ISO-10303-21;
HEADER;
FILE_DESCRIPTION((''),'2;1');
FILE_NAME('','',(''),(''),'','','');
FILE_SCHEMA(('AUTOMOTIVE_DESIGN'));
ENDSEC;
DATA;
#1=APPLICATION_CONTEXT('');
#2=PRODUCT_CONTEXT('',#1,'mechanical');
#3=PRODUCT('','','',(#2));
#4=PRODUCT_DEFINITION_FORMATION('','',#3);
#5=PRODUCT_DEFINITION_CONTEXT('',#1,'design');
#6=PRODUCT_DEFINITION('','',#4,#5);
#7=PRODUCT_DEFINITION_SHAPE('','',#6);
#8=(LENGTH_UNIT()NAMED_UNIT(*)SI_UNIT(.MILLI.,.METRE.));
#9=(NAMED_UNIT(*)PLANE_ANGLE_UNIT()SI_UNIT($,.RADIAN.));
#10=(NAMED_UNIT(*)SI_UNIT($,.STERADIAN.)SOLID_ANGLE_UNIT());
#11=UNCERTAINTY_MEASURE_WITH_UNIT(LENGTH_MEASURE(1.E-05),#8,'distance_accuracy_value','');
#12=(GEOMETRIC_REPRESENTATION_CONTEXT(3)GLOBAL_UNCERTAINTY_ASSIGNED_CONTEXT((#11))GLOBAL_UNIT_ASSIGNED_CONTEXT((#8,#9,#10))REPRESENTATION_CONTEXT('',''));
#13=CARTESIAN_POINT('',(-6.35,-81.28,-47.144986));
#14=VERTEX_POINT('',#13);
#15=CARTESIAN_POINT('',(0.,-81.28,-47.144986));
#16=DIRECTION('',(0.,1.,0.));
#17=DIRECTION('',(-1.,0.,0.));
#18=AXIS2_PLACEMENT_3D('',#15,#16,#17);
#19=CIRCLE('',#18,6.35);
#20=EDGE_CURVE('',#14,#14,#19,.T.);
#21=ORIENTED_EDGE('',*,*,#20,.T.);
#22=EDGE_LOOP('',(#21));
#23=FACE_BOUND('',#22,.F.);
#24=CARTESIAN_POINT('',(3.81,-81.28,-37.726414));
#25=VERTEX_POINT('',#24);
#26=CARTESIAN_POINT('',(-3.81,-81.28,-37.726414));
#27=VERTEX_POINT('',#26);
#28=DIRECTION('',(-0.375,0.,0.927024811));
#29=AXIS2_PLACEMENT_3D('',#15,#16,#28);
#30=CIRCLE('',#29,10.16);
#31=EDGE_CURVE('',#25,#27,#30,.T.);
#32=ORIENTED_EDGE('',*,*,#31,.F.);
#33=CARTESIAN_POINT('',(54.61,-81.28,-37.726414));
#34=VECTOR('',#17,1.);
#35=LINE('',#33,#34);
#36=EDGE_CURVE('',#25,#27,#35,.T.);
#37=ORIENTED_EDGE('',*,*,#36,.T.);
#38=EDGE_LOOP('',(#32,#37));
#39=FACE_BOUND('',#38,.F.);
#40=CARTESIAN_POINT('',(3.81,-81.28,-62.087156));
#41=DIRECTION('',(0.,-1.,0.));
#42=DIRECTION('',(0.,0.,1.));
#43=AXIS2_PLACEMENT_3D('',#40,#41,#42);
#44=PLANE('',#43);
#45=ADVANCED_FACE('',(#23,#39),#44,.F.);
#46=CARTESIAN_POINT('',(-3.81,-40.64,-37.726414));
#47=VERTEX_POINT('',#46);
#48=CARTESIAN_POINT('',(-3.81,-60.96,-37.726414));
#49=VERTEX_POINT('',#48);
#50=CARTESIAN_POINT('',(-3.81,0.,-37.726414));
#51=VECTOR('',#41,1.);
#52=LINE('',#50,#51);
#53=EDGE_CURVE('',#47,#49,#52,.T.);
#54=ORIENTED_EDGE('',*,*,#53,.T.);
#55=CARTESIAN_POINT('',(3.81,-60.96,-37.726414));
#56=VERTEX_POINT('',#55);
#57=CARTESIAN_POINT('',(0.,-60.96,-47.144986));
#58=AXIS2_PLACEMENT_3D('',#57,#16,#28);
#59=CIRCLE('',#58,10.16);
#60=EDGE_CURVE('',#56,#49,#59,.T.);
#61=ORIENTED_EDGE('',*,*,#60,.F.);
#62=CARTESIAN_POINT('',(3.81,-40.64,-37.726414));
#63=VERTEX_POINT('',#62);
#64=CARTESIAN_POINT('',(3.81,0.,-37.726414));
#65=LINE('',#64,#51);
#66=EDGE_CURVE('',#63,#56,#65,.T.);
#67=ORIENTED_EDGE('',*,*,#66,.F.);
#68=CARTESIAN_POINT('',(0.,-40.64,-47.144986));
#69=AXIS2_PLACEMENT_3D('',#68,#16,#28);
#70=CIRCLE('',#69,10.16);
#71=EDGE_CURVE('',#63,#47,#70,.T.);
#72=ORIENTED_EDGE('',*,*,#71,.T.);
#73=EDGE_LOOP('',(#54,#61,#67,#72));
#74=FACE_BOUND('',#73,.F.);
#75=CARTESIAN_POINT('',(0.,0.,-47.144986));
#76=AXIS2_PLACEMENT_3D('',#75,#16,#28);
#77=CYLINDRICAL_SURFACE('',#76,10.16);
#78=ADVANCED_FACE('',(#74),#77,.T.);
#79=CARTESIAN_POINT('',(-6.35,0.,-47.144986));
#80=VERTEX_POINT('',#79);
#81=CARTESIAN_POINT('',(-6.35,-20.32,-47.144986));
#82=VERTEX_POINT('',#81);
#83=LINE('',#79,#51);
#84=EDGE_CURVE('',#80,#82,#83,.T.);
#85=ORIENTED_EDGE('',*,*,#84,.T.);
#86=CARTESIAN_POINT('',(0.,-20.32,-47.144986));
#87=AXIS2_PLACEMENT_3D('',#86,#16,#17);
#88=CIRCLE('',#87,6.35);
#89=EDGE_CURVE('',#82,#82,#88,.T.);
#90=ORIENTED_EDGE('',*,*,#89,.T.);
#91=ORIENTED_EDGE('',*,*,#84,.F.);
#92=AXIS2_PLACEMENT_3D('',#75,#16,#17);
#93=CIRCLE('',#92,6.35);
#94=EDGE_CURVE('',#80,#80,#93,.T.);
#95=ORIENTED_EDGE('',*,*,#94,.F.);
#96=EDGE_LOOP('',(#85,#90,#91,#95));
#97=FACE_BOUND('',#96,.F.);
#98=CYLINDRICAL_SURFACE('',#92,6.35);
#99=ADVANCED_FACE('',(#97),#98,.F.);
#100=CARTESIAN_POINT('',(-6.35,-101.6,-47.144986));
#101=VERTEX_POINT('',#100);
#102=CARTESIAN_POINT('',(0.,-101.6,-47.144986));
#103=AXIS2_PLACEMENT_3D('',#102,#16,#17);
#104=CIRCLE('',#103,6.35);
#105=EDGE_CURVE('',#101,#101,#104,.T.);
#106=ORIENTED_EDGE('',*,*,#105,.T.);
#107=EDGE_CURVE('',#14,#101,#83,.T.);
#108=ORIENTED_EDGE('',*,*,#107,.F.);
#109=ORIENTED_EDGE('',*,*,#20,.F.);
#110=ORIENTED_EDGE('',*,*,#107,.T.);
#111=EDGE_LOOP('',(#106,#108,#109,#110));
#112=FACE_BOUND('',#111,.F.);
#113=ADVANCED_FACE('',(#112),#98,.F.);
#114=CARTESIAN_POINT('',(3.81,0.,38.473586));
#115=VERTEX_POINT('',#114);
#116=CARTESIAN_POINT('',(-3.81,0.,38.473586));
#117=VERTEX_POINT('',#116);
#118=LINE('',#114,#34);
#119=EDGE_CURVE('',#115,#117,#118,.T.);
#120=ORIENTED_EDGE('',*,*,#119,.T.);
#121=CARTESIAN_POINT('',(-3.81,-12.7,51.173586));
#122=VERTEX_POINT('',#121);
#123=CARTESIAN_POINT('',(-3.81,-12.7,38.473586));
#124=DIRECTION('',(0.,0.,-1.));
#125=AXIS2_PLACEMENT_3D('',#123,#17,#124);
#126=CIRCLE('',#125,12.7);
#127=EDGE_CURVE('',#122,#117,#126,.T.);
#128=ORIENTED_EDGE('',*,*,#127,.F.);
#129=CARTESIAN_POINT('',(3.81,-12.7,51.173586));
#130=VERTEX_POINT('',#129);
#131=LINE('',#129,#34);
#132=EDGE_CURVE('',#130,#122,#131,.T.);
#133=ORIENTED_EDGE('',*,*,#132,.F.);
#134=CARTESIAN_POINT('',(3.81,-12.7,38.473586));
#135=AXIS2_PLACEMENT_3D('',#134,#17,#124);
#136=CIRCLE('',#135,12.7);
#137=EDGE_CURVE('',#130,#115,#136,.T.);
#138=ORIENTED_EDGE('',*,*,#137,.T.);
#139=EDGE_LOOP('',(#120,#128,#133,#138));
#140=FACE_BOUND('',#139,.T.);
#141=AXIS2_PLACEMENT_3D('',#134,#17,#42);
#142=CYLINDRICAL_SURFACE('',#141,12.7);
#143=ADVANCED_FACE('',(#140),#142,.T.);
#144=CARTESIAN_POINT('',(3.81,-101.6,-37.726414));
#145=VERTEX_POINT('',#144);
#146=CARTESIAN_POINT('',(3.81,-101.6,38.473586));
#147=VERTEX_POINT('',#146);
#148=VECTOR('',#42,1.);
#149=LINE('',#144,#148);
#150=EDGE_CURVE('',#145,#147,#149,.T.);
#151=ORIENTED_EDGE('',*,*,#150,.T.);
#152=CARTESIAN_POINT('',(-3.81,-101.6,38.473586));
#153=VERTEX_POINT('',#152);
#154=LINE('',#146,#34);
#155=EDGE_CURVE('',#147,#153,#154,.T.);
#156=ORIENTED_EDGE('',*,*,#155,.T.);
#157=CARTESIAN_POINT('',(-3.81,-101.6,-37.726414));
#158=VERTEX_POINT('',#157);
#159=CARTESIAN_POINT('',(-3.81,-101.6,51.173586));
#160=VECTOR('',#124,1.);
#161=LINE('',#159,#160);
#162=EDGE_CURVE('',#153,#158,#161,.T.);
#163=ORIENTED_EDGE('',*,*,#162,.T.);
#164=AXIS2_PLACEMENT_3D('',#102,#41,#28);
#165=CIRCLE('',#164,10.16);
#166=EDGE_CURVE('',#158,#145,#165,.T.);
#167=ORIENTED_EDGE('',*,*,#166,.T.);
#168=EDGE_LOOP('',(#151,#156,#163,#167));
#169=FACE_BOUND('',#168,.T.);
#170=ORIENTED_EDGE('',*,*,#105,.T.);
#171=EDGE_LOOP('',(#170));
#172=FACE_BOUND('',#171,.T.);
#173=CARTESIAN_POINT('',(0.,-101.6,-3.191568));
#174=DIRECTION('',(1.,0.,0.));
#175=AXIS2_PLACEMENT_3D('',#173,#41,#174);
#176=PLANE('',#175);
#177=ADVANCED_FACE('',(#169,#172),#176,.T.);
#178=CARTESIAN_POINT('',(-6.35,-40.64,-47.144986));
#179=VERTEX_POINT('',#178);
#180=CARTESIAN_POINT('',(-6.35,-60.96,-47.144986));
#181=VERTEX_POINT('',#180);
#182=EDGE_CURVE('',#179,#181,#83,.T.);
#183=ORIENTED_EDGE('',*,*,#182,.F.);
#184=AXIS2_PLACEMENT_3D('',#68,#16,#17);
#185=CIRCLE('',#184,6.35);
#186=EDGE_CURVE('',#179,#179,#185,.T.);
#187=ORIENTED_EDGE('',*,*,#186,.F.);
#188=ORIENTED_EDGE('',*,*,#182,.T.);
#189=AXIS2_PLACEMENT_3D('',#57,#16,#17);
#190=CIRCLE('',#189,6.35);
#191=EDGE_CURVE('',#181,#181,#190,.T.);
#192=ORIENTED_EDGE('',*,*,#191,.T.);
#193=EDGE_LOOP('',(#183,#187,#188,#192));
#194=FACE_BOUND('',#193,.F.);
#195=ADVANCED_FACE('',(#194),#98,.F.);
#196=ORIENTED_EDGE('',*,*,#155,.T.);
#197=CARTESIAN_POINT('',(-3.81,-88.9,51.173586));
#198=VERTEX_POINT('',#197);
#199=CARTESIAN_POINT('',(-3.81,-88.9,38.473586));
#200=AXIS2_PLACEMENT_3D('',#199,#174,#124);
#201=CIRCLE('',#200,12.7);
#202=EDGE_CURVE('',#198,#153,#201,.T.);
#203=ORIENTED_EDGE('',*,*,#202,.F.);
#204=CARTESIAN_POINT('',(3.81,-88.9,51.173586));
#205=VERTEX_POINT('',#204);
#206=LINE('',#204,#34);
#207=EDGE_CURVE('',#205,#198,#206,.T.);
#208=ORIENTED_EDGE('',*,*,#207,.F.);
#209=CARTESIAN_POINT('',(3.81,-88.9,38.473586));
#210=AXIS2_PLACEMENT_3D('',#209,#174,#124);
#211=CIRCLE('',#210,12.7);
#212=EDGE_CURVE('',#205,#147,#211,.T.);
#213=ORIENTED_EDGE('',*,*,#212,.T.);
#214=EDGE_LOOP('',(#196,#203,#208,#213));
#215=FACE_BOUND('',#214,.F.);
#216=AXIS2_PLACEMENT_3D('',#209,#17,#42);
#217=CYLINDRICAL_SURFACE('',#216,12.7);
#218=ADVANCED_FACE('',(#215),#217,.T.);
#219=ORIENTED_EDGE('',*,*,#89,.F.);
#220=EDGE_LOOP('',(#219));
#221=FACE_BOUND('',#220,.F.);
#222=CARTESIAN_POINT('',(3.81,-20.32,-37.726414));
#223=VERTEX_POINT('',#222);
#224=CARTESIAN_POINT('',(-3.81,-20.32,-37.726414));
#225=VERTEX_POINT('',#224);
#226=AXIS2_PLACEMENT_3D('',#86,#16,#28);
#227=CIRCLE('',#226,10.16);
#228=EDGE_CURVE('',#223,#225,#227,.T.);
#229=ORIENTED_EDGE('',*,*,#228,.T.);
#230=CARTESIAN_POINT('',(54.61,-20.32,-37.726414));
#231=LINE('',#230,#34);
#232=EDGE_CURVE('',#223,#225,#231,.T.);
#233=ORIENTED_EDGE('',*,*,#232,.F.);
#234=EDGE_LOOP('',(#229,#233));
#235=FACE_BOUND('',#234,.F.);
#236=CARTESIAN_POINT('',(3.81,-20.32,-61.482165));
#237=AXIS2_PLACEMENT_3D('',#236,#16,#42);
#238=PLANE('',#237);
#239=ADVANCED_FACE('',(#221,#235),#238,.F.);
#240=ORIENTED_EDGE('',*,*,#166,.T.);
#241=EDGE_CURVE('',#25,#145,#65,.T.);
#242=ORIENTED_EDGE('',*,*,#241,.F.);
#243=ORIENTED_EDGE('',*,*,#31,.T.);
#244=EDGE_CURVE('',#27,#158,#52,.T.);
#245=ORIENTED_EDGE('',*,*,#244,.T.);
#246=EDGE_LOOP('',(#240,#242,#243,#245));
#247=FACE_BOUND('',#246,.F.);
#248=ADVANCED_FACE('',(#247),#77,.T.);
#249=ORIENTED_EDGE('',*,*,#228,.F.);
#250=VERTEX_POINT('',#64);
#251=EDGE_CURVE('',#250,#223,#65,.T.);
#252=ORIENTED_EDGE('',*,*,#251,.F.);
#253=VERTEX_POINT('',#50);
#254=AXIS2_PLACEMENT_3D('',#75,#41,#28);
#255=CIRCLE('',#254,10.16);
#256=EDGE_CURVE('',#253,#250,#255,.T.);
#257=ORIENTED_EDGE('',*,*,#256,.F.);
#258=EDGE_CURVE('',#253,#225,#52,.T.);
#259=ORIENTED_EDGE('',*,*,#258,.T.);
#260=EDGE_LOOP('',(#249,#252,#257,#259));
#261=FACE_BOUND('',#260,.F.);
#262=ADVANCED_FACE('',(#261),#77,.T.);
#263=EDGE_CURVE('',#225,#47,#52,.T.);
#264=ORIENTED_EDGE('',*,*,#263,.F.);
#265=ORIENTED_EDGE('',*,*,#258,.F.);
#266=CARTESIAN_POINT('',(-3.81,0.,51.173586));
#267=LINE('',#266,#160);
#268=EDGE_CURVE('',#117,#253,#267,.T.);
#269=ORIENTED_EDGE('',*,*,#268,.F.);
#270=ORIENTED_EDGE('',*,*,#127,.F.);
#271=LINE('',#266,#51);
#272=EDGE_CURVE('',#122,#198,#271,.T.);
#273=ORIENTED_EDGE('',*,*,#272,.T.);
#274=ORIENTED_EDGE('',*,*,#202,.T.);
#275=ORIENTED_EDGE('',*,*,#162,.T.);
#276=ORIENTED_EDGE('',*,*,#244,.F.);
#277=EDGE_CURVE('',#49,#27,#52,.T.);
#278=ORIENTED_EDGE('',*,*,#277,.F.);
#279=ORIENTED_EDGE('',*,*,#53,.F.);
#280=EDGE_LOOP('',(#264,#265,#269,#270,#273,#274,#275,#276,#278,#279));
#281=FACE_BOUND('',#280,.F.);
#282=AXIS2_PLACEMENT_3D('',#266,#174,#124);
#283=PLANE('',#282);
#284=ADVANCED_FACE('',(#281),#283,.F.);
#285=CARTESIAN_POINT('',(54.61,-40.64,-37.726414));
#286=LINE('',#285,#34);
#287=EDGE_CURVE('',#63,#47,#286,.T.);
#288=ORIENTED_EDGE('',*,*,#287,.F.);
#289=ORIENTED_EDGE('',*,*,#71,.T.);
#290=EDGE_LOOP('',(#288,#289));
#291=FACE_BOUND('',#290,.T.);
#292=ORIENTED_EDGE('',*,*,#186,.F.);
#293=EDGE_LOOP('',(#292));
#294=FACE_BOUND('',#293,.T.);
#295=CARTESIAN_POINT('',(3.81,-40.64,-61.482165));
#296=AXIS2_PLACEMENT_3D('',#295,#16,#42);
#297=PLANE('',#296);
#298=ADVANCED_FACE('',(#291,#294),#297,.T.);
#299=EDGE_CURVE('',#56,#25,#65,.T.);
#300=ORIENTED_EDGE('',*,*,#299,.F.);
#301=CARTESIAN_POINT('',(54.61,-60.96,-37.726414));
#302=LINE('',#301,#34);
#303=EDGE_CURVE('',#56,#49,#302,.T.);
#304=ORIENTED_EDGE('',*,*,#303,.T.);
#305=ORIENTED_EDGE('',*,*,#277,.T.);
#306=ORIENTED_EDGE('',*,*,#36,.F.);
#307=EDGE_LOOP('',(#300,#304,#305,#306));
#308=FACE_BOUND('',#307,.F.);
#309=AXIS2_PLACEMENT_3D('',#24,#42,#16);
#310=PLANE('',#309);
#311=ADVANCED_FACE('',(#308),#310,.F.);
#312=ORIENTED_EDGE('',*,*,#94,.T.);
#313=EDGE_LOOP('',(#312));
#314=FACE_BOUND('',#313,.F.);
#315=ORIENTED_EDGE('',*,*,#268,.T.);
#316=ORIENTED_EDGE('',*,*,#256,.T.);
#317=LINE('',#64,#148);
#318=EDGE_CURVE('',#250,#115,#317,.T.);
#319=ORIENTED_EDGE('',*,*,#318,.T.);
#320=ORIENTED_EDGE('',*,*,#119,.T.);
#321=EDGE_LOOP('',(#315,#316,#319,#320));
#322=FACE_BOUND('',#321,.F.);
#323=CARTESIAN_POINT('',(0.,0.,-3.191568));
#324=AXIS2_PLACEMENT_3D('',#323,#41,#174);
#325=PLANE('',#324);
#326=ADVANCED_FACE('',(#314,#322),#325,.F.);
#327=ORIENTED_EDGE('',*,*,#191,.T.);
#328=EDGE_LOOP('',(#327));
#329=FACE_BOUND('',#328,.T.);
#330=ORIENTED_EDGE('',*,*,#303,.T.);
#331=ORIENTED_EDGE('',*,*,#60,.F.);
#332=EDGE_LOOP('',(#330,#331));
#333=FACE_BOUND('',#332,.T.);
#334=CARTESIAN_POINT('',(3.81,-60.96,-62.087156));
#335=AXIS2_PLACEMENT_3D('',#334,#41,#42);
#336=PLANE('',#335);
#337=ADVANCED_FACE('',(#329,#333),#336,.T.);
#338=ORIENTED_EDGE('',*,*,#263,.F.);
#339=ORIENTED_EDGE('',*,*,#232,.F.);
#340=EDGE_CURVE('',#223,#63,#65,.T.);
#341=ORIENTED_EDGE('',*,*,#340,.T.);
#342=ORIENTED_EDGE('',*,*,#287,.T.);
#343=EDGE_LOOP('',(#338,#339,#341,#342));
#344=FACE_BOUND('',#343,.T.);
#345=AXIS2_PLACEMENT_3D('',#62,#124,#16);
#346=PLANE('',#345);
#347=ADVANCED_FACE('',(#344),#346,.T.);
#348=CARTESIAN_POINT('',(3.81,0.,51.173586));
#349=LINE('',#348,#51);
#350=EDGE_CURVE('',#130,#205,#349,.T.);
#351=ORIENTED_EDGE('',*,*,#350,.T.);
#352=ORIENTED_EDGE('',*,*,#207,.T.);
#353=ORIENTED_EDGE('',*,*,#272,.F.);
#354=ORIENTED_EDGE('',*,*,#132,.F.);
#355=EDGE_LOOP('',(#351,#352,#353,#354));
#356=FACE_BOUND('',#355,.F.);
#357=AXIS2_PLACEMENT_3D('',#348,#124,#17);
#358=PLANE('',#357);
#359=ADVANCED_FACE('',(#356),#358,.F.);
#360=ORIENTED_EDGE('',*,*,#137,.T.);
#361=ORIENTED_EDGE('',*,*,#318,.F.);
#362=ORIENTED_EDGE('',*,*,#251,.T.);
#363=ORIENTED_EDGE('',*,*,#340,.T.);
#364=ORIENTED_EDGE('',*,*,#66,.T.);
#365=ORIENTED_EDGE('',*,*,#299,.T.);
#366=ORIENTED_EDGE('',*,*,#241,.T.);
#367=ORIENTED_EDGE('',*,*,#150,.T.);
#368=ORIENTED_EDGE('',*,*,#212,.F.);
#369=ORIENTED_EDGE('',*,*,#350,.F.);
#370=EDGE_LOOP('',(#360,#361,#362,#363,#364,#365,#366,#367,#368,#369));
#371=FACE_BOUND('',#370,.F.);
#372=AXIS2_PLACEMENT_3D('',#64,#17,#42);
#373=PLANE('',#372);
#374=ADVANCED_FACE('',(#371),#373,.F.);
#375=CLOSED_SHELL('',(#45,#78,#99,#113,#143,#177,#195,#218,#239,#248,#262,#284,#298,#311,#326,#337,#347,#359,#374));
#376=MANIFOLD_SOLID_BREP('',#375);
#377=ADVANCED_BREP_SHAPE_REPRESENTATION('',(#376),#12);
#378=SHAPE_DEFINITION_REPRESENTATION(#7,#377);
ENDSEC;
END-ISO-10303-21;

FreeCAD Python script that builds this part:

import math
import FreeCAD as App
import Part
import Sketcher
from FreeCAD import Vector
Q = App.Units.Quantity


def edges_at(feature, points):
    """Names of the edges that pass closest to the given points."""
    edges = feature.Shape.Edges
    near = lambda p: min(range(len(edges)), key=lambda i: edges[i].distToShape(Part.Vertex(*p))[0])
    return sorted({f"Edge{near(p) + 1}" for p in points})


def add_polygon(sketch, points):
    """Adds a closed chain of lines whose ends are joined by coincident constraints."""
    first, n = sketch.GeometryCount, len(points)
    for a, b in zip(points, points[1:] + points[:1]):
        sketch.addGeometry(Part.LineSegment(App.Vector(*a, 0), App.Vector(*b, 0)), False)
    for i in range(n):
        sketch.addConstraint(Sketcher.Constraint("Coincident", first + i, 2, first + (i + 1) % n, 1))

doc = App.newDocument("Part")
body = doc.addObject("PartDesign::Body", "Body")

# Sketch on XZ plane
sketch1 = body.newObject("Sketcher::SketchObject", "Sketch")
sketch1.AttachmentSupport = (doc.getObject("XZ_Plane"), [""])
sketch1.MapMode = "FlatFace"
sketch1.addGeometry(Part.LineSegment(Vector(4, 51, 0), Vector(-4, 51, 0)), False)
sketch1.addGeometry(Part.LineSegment(Vector(-4, 51, 0), Vector(-4, -38, 0)), False)
sketch1.addGeometry(Part.ArcOfCircle(Part.Circle(Vector(0, -47, 0), Vector(0, 0, 1), 10), math.radians(112), math.radians(428)), False)
sketch1.addGeometry(Part.LineSegment(Vector(4, -38, 0), Vector(4, 51, 0)), False)
sketch1.addConstraint(Sketcher.Constraint("Coincident", 0, 2, 1, 1))
sketch1.addConstraint(Sketcher.Constraint("Coincident", 1, 2, 2, 1))
sketch1.addConstraint(Sketcher.Constraint("Coincident", 2, 2, 3, 1))
sketch1.addConstraint(Sketcher.Constraint("Coincident", 3, 2, 0, 1))
sketch1.addConstraint(Sketcher.Constraint("Horizontal", 0))
sketch1.addConstraint(Sketcher.Constraint("Vertical", 1))
sketch1.addConstraint(Sketcher.Constraint("Vertical", 3))
sketch1.addConstraint(Sketcher.Constraint("Symmetric", 1, 2, 2, 2, -2))
sketch1.addConstraint(Sketcher.Constraint("Radius", 2, Q("0.4 in")))
sketch1.addConstraint(Sketcher.Constraint("DistanceX", 0, 2, 0, 1, Q("0.3 in")))
sketch1.addConstraint(Sketcher.Constraint("DistanceY", 1, 2, 1, 1, Q("3.5 in")))
sketch1.addConstraint(Sketcher.Constraint("DistanceY", 2, 3, -1, 1, 47.144986))
pad1 = body.newObject("PartDesign::Pad", "Pad")
pad1.Profile = sketch1
pad1.Length = Q("4 in")
doc.recompute()

fillet = body.newObject("PartDesign::Fillet", "Fillet")
fillet.Base = (pad1, edges_at(pad1, [(0, -101.6, 51.174), (0, 0, 51.174)]))
fillet.Radius = Q("0.5 in")

# Sketch on XZ plane
sketch2 = body.newObject("Sketcher::SketchObject", "Sketch001")
sketch2.AttachmentSupport = (doc.getObject("XZ_Plane"), [""])
sketch2.MapMode = "FlatFace"
sketch2.addGeometry(Part.Circle(Vector(0, -47, 0), Vector(0, 0, 1), 6), False)
sketch2.addConstraint(Sketcher.Constraint("PointOnObject", 0, 3, -2))
sketch2.addConstraint(Sketcher.Constraint("Diameter", 0, Q("0.5 in")))
sketch2.addConstraint(Sketcher.Constraint("DistanceY", 0, 3, -1, 1, 47.144986))
pocket1 = body.newObject("PartDesign::Pocket", "Pocket")
pocket1.Profile = sketch2
pocket1.Type = "ThroughAll"
pocket1.Reversed = True

# Sketch on YZ plane
sketch3 = body.newObject("Sketcher::SketchObject", "Sketch002")
sketch3.AttachmentSupport = (doc.getObject("YZ_Plane"), [""])
sketch3.MapMode = "FlatFace"
sketch3.AttachmentOffset = App.Placement(Vector(0, 0, 0.15 * 25.4), App.Rotation())
add_polygon(sketch3, [(-81, -38), (-81, -62), (-61, -62), (-61, -38)])  # lines 0-3
add_polygon(sketch3, [(-41, -38), (-41, -61), (-20, -61), (-20, -38)])  # lines 4-7
sketch3.addConstraint(Sketcher.Constraint("Vertical", 0))
sketch3.addConstraint(Sketcher.Constraint("Horizontal", 1))
sketch3.addConstraint(Sketcher.Constraint("Vertical", 2))
sketch3.addConstraint(Sketcher.Constraint("Horizontal", 3))
sketch3.addConstraint(Sketcher.Constraint("Vertical", 4))
sketch3.addConstraint(Sketcher.Constraint("Horizontal", 5))
sketch3.addConstraint(Sketcher.Constraint("Vertical", 6))
sketch3.addConstraint(Sketcher.Constraint("Horizontal", 7))
sketch3.addConstraint(Sketcher.Constraint("Horizontal", 3, 2, 6, 2))
sketch3.addConstraint(Sketcher.Constraint("Equal", 3, 5))
sketch3.addConstraint(Sketcher.Constraint("DistanceX", 1, 1, 1, 2, Q("0.8 in")))
sketch3.addConstraint(Sketcher.Constraint("DistanceX", 0, 2, -1, 1, Q("3.2 in")))
sketch3.addConstraint(Sketcher.Constraint("DistanceX", 4, 2, -1, 1, Q("1.6 in")))
sketch3.addConstraint(Sketcher.Constraint("DistanceY", 0, 2, 0, 1, 24.360742))
sketch3.addConstraint(Sketcher.Constraint("DistanceY", 4, 2, 4, 1, 23.755751))
sketch3.addConstraint(Sketcher.Constraint("DistanceY", 0, 2, -1, 1, 62.087156))
pocket2 = body.newObject("PartDesign::Pocket", "Pocket001")
pocket2.Profile = sketch3
pocket2.Length = Q("4 in")
pocket2.Midplane = True

doc.recompute()
